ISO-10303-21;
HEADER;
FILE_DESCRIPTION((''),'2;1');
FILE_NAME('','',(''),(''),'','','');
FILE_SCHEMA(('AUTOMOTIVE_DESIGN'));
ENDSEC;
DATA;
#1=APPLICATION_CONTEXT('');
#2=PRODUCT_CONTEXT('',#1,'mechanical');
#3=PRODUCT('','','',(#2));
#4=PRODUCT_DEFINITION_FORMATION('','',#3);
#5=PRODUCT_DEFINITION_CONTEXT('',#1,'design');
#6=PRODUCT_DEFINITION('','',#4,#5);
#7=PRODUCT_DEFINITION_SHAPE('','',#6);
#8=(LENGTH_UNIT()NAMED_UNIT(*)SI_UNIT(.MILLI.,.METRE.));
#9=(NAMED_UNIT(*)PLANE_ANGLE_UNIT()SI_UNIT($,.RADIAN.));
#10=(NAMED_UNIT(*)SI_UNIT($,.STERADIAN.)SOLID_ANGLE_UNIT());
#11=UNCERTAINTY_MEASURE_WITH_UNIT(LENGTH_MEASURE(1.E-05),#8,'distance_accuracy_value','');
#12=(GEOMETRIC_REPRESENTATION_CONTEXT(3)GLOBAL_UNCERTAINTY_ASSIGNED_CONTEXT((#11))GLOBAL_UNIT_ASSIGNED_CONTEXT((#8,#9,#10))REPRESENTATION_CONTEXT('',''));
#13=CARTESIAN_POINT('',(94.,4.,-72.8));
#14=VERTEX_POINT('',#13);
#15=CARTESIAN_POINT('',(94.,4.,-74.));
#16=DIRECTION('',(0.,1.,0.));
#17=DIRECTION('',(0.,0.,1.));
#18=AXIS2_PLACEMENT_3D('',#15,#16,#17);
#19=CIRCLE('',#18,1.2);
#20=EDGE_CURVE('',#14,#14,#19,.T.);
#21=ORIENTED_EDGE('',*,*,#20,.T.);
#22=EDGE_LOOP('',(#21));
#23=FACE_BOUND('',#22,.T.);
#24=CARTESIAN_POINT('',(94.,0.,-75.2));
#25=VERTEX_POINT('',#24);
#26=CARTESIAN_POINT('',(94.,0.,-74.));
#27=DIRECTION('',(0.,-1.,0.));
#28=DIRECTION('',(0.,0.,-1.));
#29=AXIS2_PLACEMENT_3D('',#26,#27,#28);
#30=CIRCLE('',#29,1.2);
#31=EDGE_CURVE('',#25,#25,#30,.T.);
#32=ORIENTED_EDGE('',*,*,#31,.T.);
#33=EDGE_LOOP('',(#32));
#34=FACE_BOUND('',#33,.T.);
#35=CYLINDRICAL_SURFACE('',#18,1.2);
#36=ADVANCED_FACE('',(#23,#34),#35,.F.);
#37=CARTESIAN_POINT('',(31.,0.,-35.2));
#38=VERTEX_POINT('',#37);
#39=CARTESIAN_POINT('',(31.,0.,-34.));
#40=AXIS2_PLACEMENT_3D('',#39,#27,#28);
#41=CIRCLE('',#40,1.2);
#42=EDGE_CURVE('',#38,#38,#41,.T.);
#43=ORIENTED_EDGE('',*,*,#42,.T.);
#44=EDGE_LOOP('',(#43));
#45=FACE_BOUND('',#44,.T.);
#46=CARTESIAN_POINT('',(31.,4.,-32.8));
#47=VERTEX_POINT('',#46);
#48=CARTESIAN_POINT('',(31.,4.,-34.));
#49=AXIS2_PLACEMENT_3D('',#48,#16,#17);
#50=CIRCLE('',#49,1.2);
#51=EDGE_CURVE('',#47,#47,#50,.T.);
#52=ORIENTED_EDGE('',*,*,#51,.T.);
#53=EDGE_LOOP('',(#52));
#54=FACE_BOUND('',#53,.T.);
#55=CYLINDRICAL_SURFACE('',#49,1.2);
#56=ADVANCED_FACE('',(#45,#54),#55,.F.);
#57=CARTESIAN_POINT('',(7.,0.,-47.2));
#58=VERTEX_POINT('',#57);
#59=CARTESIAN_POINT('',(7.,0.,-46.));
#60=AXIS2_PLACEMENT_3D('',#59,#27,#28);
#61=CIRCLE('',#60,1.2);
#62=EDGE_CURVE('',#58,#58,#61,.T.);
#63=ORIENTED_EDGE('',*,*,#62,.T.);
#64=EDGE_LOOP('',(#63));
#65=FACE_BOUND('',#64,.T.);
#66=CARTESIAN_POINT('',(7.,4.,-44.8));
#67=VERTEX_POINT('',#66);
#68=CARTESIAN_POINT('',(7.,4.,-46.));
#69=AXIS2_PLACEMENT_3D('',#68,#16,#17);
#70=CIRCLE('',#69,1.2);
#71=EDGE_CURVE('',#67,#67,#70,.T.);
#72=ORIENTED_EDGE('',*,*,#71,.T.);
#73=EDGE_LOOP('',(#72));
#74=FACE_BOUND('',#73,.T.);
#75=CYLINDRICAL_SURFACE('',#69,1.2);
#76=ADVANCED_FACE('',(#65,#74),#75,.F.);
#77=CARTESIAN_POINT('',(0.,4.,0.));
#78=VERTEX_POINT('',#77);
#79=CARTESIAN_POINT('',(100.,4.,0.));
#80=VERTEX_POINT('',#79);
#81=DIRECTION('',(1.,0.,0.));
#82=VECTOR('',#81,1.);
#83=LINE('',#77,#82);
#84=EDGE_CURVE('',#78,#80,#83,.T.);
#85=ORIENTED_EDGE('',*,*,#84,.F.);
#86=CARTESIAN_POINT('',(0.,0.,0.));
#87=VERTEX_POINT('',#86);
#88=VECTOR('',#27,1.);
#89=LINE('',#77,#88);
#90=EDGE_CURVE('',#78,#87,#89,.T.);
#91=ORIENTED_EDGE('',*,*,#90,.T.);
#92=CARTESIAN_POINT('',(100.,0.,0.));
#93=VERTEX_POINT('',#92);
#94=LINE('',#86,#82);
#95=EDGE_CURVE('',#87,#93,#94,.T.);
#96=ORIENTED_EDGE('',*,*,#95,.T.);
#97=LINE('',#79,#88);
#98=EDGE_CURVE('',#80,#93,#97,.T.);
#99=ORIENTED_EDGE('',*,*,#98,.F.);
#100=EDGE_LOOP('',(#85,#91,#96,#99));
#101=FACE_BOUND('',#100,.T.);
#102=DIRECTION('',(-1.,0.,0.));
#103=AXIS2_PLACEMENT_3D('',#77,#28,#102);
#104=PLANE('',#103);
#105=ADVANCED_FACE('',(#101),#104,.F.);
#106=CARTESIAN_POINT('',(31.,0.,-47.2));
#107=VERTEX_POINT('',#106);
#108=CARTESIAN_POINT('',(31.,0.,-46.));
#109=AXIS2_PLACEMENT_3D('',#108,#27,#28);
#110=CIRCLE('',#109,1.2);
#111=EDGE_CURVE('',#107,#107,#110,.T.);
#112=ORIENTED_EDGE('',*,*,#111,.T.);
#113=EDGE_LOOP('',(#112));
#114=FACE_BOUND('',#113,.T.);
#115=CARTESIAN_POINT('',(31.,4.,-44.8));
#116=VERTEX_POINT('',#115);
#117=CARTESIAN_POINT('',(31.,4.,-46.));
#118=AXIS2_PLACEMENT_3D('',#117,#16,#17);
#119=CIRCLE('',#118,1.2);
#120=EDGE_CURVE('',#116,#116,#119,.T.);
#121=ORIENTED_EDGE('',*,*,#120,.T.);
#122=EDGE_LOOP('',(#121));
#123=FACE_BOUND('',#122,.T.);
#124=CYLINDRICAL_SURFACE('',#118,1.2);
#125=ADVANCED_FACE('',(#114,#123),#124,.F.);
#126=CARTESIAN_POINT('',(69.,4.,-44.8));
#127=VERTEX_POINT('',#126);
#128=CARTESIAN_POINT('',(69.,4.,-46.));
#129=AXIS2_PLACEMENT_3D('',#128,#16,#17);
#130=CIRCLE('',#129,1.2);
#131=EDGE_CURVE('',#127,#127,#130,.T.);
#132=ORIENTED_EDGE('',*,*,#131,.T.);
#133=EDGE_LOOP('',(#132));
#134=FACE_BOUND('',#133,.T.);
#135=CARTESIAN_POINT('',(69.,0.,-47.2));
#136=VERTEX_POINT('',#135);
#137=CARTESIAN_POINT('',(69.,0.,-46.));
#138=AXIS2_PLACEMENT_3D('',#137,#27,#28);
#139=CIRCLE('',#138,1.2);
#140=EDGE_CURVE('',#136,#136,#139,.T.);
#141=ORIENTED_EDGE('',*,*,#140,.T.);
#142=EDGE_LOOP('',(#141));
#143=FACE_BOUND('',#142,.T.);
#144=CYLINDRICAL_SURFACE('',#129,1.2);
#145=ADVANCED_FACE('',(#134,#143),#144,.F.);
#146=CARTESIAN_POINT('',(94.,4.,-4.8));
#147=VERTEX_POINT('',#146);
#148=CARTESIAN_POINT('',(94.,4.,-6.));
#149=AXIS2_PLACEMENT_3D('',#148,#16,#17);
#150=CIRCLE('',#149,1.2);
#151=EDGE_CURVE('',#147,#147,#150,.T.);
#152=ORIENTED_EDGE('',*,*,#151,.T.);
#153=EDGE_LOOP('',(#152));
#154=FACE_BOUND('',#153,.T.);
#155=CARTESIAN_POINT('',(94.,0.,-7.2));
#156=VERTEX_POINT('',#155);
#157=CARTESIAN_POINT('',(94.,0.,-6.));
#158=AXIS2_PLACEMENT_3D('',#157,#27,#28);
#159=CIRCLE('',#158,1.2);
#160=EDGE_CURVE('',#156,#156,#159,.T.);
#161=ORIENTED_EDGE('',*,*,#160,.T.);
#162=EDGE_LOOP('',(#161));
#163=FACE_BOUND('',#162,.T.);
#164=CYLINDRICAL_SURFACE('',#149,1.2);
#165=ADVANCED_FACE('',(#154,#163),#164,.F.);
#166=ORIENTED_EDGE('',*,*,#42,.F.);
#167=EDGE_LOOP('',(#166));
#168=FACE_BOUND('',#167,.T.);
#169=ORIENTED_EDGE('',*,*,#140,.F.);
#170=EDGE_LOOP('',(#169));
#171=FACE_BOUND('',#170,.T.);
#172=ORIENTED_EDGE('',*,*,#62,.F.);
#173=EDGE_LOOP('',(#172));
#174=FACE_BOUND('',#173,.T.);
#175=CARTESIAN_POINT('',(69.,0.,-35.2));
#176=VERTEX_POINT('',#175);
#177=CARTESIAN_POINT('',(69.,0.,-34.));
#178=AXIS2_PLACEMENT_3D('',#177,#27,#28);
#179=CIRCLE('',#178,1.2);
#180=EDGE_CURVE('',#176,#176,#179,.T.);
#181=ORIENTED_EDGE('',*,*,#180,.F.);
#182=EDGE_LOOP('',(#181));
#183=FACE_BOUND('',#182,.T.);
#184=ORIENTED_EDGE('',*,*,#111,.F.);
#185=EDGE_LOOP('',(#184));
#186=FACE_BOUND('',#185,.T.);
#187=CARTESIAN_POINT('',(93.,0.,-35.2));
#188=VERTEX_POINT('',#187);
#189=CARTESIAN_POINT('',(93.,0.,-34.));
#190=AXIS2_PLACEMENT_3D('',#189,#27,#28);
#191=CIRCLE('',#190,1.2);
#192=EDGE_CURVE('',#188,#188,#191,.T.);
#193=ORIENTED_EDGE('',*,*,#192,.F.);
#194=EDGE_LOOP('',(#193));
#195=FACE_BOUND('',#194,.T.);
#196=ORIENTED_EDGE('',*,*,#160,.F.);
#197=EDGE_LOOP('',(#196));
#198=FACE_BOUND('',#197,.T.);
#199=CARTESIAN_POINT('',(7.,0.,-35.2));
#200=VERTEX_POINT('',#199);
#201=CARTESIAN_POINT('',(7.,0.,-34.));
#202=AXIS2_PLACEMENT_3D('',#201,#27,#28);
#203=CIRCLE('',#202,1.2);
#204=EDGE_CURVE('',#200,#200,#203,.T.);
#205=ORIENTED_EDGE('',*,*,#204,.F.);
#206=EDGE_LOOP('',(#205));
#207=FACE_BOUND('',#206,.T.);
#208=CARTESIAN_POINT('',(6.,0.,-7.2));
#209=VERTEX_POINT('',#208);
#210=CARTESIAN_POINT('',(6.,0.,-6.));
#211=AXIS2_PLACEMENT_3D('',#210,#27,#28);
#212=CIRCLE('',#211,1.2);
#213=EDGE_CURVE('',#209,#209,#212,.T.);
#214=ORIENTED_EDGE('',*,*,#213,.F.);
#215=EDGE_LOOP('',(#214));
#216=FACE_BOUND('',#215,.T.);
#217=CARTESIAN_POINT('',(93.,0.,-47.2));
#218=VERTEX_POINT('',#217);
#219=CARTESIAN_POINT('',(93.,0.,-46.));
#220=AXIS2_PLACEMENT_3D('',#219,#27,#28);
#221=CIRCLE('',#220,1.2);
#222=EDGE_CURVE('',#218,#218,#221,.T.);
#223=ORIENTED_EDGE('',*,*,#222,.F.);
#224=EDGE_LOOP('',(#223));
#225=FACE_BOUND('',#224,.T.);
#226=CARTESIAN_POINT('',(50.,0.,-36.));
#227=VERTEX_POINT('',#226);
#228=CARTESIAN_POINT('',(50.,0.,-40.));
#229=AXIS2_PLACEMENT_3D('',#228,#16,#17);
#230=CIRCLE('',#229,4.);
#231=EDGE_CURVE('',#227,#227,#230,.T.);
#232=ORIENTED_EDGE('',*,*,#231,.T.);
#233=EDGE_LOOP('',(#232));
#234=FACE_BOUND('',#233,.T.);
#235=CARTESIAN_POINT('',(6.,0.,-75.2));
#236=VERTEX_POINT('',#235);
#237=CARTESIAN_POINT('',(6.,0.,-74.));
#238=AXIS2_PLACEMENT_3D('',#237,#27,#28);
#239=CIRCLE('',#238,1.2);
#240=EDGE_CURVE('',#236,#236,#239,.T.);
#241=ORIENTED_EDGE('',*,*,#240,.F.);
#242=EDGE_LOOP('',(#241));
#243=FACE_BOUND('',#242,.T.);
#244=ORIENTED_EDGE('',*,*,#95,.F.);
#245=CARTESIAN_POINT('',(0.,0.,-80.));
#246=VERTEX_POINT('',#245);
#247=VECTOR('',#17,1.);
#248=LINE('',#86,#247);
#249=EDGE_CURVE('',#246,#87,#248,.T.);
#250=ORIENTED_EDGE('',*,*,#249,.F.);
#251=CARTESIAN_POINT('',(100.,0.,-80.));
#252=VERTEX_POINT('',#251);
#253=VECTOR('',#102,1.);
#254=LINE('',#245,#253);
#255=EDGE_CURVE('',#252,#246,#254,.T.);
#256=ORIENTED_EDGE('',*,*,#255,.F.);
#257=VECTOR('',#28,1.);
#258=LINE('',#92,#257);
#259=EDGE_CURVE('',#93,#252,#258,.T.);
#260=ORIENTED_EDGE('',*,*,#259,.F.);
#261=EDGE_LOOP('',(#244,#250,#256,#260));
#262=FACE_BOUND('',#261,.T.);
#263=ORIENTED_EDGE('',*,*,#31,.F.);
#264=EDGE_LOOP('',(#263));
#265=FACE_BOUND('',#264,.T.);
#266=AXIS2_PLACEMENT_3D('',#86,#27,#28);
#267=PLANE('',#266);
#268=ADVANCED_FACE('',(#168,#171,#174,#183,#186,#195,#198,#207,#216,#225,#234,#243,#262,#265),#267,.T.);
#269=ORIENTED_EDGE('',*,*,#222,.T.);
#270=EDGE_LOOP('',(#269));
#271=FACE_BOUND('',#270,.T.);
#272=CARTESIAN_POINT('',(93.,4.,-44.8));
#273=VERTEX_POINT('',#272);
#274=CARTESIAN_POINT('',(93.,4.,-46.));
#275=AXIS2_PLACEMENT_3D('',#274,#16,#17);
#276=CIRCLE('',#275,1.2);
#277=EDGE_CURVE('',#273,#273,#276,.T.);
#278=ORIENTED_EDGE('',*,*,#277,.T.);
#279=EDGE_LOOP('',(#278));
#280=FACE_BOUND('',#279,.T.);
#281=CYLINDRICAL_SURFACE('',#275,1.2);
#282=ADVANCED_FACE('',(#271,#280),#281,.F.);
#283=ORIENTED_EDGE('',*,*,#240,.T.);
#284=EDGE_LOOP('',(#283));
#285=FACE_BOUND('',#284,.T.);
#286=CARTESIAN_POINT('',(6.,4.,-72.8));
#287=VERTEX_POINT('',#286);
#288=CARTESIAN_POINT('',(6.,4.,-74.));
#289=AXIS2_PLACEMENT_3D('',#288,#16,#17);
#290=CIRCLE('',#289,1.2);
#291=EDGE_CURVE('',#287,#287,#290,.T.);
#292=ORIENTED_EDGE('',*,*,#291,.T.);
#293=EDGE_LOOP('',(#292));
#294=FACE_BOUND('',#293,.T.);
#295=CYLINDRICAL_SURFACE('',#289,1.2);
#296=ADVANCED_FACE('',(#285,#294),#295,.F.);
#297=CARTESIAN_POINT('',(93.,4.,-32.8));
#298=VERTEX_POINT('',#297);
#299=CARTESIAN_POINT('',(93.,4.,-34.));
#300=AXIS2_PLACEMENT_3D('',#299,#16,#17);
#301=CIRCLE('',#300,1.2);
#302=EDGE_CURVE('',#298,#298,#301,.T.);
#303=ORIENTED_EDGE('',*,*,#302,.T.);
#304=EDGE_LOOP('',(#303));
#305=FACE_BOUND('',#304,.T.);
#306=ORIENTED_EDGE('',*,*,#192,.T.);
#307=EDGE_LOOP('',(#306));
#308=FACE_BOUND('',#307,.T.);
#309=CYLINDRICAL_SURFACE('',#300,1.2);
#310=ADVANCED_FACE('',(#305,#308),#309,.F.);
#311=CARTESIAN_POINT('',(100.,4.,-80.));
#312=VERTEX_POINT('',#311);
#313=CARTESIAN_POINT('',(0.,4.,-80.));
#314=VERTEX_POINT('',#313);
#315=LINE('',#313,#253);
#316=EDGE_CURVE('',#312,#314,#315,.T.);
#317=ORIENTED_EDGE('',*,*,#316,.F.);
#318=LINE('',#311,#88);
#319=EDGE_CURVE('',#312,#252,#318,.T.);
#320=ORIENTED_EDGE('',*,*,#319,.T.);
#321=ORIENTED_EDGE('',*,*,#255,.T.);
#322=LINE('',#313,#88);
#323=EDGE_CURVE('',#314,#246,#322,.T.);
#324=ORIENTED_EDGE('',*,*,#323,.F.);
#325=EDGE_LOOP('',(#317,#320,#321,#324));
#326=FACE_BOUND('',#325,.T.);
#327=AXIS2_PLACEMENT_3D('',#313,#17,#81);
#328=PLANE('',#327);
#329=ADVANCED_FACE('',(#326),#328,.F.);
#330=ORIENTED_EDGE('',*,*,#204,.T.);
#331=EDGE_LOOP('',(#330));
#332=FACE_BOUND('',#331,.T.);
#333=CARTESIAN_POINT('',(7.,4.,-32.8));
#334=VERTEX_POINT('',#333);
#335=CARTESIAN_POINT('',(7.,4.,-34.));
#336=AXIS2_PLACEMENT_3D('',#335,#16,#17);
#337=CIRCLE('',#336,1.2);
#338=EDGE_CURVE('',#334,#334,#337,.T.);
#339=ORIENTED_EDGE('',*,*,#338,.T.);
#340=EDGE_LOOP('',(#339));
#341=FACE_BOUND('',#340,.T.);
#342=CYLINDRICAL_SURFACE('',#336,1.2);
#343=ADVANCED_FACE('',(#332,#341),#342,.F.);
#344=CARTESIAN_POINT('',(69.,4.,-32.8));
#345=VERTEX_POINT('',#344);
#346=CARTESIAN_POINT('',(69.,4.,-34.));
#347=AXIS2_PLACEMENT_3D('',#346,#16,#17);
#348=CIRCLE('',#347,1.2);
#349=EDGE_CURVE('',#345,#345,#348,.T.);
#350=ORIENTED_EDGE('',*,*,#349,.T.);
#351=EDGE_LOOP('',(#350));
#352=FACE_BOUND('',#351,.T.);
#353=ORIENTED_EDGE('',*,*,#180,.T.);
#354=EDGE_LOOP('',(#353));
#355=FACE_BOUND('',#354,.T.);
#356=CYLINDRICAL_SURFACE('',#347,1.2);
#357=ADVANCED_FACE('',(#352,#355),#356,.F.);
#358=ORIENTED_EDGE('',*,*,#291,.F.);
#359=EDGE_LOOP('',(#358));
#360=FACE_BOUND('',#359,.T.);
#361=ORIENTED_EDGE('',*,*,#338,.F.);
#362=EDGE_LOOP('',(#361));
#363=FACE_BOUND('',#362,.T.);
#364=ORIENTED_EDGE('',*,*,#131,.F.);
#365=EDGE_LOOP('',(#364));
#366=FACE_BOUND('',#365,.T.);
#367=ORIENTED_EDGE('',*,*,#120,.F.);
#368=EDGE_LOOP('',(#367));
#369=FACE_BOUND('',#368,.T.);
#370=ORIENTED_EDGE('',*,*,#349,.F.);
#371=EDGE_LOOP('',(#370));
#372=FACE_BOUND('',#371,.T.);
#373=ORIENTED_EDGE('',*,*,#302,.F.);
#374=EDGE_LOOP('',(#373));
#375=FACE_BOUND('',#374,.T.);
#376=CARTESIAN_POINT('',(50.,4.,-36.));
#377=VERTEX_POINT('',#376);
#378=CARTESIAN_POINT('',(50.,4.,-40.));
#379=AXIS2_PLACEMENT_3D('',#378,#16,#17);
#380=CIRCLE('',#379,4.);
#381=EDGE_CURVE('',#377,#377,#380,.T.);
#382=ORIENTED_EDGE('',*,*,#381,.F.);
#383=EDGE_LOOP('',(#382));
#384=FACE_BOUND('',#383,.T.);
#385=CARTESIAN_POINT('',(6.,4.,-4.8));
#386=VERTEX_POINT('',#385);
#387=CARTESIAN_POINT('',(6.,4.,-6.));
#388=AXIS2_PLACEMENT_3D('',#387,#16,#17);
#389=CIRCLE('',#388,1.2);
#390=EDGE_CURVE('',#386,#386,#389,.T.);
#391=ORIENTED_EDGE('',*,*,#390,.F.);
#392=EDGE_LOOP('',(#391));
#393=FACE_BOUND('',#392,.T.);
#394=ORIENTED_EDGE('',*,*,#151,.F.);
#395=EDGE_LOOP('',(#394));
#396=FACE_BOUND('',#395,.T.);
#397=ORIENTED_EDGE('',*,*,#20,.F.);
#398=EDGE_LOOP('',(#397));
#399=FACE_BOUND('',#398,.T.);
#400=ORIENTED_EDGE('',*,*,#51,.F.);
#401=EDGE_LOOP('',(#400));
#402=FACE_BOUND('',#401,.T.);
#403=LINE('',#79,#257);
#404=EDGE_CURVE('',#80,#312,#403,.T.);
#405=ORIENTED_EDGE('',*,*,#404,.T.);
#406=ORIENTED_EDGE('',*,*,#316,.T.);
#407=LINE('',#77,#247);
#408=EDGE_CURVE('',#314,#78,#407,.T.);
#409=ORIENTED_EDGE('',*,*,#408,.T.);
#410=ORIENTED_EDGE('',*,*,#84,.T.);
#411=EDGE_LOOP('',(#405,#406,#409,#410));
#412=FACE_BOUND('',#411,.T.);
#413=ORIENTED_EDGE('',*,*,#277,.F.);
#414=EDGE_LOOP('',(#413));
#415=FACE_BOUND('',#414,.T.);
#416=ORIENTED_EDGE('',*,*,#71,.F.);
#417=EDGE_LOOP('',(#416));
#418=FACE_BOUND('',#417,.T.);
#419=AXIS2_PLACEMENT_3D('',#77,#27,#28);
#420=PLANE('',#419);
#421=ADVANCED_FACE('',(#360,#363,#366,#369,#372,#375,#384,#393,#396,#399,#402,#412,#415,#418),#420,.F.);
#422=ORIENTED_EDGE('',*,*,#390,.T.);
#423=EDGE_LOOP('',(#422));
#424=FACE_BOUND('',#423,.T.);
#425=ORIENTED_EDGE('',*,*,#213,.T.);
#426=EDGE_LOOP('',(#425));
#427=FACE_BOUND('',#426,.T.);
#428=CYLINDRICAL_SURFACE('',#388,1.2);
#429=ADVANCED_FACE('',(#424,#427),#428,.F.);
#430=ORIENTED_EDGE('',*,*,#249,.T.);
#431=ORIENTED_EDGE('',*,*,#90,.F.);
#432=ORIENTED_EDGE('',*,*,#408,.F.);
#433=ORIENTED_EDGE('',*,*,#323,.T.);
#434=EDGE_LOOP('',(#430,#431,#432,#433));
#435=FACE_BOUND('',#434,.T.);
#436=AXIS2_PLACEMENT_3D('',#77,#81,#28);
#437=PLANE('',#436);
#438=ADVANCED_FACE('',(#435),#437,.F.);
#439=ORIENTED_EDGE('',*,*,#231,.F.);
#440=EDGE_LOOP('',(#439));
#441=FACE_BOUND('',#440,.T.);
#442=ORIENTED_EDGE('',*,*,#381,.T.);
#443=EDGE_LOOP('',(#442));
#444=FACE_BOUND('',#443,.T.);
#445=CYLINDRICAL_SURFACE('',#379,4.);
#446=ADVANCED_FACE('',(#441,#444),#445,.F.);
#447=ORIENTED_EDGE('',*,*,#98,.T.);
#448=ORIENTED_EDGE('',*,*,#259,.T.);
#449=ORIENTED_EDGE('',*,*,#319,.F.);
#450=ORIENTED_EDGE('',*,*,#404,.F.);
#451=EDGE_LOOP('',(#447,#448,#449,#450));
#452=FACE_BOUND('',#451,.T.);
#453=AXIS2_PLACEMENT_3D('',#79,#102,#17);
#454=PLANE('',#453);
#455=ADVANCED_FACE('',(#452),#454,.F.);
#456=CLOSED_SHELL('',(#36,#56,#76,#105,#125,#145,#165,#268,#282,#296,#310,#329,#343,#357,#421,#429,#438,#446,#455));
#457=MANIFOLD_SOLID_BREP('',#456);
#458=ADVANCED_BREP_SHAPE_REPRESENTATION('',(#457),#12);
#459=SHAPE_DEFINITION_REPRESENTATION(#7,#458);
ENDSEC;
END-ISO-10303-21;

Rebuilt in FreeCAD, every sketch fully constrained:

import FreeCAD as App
import Part
import Sketcher
from FreeCAD import Vector


def add_polygon(sketch, points):
    """Adds a closed chain of lines whose ends are joined by coincident constraints."""
    first, n = sketch.GeometryCount, len(points)
    for a, b in zip(points, points[1:] + points[:1]):
        sketch.addGeometry(Part.LineSegment(App.Vector(*a, 0), App.Vector(*b, 0)), False)
    for i in range(n):
        sketch.addConstraint(Sketcher.Constraint("Coincident", first + i, 2, first + (i + 1) % n, 1))

doc = App.newDocument("Part")
params = doc.addObject("Spreadsheet::Sheet", "Params")
for row, (alias, value) in enumerate([
    ("sketch1_width", "100 mm"),
    ("sketch1_height", "80 mm"),
    ("pad1_length", "4 mm"),
    ("sketch2_diameter", "2.4 mm"),
    ("hole_diameter", "2.4 mm"),
    ("hole_depth", "6 mm"),
    ("sketch3_diameter", "2.4 mm"),
    ("hole2_diameter", "2.4 mm"),
    ("hole2_depth", "6 mm"),
    ("sketch4_diameter", "8 mm"),
    ("hole3_diameter", "8 mm"),
], start=1):
    params.set(f"A{row}", alias)
    params.set(f"B{row}", "=" + value)
    params.setAlias(f"B{row}", alias)

body = doc.addObject("PartDesign::Body", "Body")

sketch1 = body.newObject("Sketcher::SketchObject", "Sketch")
sketch1.AttachmentSupport = (doc.getObject("XZ_Plane"), [""])
sketch1.MapMode = "FlatFace"
add_polygon(sketch1, [(0, -80), (0, 0), (100, 0), (100, -80)])
sketch1.addConstraint([
    Sketcher.Constraint("Vertical", 0),
    Sketcher.Constraint("Horizontal", 1),
    Sketcher.Constraint("Vertical", 2),
    Sketcher.Constraint("Horizontal", 3),
    Sketcher.Constraint("Coincident", 0, 2, -1, 1),
    Sketcher.Constraint("DistanceX", 1, 1, 1, 2, 100.0),
    Sketcher.Constraint("DistanceY", 0, 1, 0, 2, 80.0),
])
sketch1.setExpression("Constraints[9]", "Params.sketch1_width")
sketch1.setExpression("Constraints[10]", "Params.sketch1_height")
pad1 = body.newObject("PartDesign::Pad", "Pad")
pad1.Profile = sketch1
pad1.setExpression("Length", "Params.pad1_length")
pad1.Reversed = True

sketch2 = body.newObject("Sketcher::SketchObject", "Sketch001")
sketch2.AttachmentSupport = (doc.getObject("XZ_Plane"), [""])
sketch2.MapMode = "FlatFace"
sketch2.AttachmentOffset = App.Placement(Vector(0, 0, -4), App.Rotation())
sketch2.addGeometry([
    Part.Circle(Vector(7, -34, 0), Vector(0, 0, 1), 1.2),
    Part.Circle(Vector(31, -34, 0), Vector(0, 0, 1), 1.2),
    Part.Circle(Vector(31, -46, 0), Vector(0, 0, 1), 1.2),
    Part.Circle(Vector(7, -46, 0), Vector(0, 0, 1), 1.2),
], False)
sketch2.addConstraint([
    Sketcher.Constraint("Equal", 0, 1),
    Sketcher.Constraint("Equal", 1, 2),
    Sketcher.Constraint("Equal", 2, 3),
    Sketcher.Constraint("Horizontal", 0, 3, 1, 3),
    Sketcher.Constraint("Horizontal", 2, 3, 3, 3),
    Sketcher.Constraint("Vertical", 1, 3, 2, 3),
    Sketcher.Constraint("Vertical", 0, 3, 3, 3),
    Sketcher.Constraint("Diameter", 0, 2.4),
    Sketcher.Constraint("DistanceX", -1, 1, 0, 3, 7.0),
    Sketcher.Constraint("DistanceY", 0, 3, -1, 1, 34.0),
    Sketcher.Constraint("DistanceX", -1, 1, 1, 3, 31.0),
    Sketcher.Constraint("DistanceY", 2, 3, -1, 1, 46.0),
])
sketch2.setExpression("Constraints[7]", "Params.sketch2_diameter")
doc.recompute()
hole = body.newObject("PartDesign::Hole", "Hole")
hole.Profile = sketch2
hole.ThreadType = "None"
hole.setExpression("Diameter", "Params.hole_diameter")
hole.DepthType = "Dimension"
hole.setExpression("Depth", "Params.hole_depth")
hole.DrillPoint = "Flat"
hole.Reversed = True
doc.recompute()

datumplane = body.newObject("PartDesign::Plane", "DatumPlane")
datumplane.AttachmentSupport = (doc.getObject("YZ_Plane"), [""])
datumplane.MapMode = "FlatFace"
datumplane.AttachmentOffset = App.Placement(Vector(0, 0, 50), App.Rotation())
mirrored = body.newObject("PartDesign::Mirrored", "Mirrored")
mirrored.Originals = [hole]
mirrored.MirrorPlane = (datumplane, [""])
body.Tip = mirrored

sketch3 = body.newObject("Sketcher::SketchObject", "Sketch002")
sketch3.AttachmentSupport = (doc.getObject("XZ_Plane"), [""])
sketch3.MapMode = "FlatFace"
sketch3.AttachmentOffset = App.Placement(Vector(0, 0, -4), App.Rotation())
sketch3.addGeometry([
    Part.Circle(Vector(6, -74, 0), Vector(0, 0, 1), 1.2),
    Part.Circle(Vector(94, -74, 0), Vector(0, 0, 1), 1.2),
    Part.Circle(Vector(94, -6, 0), Vector(0, 0, 1), 1.2),
    Part.Circle(Vector(6, -6, 0), Vector(0, 0, 1), 1.2),
], False)
sketch3.addConstraint([
    Sketcher.Constraint("Equal", 0, 1),
    Sketcher.Constraint("Equal", 1, 2),
    Sketcher.Constraint("Equal", 2, 3),
    Sketcher.Constraint("Horizontal", 0, 3, 1, 3),
    Sketcher.Constraint("Horizontal", 2, 3, 3, 3),
    Sketcher.Constraint("Vertical", 1, 3, 2, 3),
    Sketcher.Constraint("Vertical", 0, 3, 3, 3),
    Sketcher.Constraint("Diameter", 0, 2.4),
    Sketcher.Constraint("DistanceX", -1, 1, 0, 3, 6.0),
    Sketcher.Constraint("DistanceY", 0, 3, -1, 1, 74.0),
    Sketcher.Constraint("DistanceX", -1, 1, 1, 3, 94.0),
    Sketcher.Constraint("DistanceY", 2, 3, -1, 1, 6.0),
])
sketch3.setExpression("Constraints[7]", "Params.sketch3_diameter")
doc.recompute()
hole2 = body.newObject("PartDesign::Hole", "Hole001")
hole2.Profile = sketch3
hole2.ThreadType = "None"
hole2.setExpression("Diameter", "Params.hole2_diameter")
hole2.DepthType = "Dimension"
hole2.setExpression("Depth", "Params.hole2_depth")
hole2.DrillPoint = "Flat"
hole2.Reversed = True

sketch4 = body.newObject("Sketcher::SketchObject", "Sketch003")
sketch4.AttachmentSupport = (doc.getObject("XZ_Plane"), [""])
sketch4.MapMode = "FlatFace"
sketch4.AttachmentOffset = App.Placement(Vector(0, 0, -4), App.Rotation())
sketch4.addGeometry(Part.Circle(Vector(50, -40, 0), Vector(0, 0, 1), 4), False)
sketch4.addConstraint([
    Sketcher.Constraint("Diameter", 0, 8.0),
    Sketcher.Constraint("DistanceX", -1, 1, 0, 3, 50.0),
    Sketcher.Constraint("DistanceY", 0, 3, -1, 1, 40.0),
])
sketch4.setExpression("Constraints[0]", "Params.sketch4_diameter")
doc.recompute()
hole3 = body.newObject("PartDesign::Hole", "Hole002")
hole3.Profile = sketch4
hole3.ThreadType = "None"
hole3.setExpression("Diameter", "Params.hole3_diameter")
hole3.DepthType = "ThroughAll"
hole3.Reversed = True

doc.recompute()
